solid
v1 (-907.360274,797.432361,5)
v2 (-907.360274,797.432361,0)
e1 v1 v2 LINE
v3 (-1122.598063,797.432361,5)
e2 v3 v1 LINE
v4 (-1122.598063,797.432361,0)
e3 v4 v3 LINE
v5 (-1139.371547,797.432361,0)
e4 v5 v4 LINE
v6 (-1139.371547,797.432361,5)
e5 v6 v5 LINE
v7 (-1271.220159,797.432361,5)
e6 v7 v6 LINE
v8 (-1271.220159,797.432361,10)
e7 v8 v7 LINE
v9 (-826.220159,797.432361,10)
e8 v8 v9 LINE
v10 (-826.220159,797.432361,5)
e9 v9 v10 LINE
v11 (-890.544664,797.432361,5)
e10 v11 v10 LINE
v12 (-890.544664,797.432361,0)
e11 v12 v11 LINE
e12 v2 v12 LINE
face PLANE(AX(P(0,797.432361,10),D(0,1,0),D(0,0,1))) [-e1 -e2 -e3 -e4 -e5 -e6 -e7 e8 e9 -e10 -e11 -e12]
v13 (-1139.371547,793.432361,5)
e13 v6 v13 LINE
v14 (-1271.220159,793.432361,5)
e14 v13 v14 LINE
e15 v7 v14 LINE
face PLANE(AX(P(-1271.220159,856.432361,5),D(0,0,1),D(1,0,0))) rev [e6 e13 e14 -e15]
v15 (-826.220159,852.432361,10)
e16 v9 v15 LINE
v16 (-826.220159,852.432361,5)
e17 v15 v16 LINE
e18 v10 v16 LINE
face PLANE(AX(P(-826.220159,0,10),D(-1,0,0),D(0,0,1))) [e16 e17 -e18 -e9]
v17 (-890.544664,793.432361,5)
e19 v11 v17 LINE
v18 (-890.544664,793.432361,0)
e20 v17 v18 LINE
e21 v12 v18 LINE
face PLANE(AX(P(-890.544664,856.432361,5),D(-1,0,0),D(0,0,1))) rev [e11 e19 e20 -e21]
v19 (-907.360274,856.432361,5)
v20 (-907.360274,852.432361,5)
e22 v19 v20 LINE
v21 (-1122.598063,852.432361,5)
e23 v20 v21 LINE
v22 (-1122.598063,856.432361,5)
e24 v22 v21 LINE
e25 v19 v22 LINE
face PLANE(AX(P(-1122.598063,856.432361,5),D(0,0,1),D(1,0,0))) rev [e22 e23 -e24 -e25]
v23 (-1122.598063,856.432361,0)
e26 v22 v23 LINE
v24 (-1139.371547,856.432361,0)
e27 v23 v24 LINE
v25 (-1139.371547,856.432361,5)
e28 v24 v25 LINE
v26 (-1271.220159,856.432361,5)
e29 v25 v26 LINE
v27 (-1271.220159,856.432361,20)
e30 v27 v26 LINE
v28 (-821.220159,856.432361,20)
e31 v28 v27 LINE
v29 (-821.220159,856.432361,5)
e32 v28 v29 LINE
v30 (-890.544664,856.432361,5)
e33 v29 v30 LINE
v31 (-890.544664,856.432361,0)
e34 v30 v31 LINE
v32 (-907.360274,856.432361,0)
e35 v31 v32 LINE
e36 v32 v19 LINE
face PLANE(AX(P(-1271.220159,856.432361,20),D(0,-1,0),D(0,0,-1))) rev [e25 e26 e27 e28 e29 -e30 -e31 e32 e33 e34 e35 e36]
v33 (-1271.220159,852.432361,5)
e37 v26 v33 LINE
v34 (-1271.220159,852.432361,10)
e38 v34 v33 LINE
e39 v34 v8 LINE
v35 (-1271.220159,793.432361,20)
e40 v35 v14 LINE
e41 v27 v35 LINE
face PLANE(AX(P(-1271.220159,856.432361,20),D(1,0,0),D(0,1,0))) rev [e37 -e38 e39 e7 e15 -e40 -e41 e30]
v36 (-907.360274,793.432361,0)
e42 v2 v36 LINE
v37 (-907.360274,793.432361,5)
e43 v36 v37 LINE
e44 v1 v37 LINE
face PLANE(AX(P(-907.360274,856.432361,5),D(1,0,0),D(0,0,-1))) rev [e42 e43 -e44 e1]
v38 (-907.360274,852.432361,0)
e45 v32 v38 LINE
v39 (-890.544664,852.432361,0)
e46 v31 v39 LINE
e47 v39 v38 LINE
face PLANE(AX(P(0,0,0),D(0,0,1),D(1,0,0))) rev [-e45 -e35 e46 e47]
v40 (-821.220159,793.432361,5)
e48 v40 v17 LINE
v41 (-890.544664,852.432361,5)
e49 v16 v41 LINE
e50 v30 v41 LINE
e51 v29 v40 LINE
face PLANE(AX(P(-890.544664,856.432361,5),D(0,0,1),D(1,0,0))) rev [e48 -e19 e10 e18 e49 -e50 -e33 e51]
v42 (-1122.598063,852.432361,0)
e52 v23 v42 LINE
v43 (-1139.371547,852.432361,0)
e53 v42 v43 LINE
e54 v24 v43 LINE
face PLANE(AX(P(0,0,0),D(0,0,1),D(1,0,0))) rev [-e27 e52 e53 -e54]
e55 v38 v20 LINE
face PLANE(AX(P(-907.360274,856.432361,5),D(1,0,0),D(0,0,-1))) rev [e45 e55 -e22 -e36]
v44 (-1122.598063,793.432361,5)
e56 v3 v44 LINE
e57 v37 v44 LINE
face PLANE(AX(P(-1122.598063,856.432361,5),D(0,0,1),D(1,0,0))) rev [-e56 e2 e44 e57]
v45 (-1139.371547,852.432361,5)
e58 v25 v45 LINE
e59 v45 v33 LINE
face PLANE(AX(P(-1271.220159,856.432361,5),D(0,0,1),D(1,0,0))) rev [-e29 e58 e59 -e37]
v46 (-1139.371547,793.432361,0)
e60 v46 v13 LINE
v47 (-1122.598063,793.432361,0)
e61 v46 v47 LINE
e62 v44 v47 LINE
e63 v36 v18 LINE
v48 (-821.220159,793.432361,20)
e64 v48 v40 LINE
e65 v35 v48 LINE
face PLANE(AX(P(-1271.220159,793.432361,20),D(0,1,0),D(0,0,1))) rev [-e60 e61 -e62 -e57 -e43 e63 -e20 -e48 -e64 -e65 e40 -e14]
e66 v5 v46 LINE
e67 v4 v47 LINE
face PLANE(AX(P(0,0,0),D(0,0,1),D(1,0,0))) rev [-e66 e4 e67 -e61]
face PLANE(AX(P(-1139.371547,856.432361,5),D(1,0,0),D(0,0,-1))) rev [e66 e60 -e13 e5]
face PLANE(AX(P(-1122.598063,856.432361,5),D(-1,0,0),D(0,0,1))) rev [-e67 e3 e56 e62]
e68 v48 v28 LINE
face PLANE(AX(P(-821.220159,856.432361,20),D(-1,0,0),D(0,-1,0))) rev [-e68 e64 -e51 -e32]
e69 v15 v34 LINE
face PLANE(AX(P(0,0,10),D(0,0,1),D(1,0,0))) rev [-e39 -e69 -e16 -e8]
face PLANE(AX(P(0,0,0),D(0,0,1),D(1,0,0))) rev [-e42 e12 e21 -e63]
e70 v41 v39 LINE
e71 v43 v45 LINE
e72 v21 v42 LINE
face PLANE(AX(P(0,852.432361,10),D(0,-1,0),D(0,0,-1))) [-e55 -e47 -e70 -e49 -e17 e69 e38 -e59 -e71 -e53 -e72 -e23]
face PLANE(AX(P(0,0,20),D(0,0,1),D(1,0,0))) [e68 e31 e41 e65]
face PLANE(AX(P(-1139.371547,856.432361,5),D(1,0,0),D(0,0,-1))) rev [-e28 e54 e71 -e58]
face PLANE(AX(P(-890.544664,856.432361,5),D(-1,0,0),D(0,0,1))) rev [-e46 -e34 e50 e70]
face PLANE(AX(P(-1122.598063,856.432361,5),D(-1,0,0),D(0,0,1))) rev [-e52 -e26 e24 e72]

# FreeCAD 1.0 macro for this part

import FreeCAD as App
import Part
import Sketcher


def add_polygon(sketch, points):
    """Adds a closed chain of lines whose ends are joined by coincident constraints."""
    first, n = sketch.GeometryCount, len(points)
    for a, b in zip(points, points[1:] + points[:1]):
        sketch.addGeometry(Part.LineSegment(App.Vector(*a, 0), App.Vector(*b, 0)), False)
    for i in range(n):
        sketch.addConstraint(Sketcher.Constraint("Coincident", first + i, 2, first + (i + 1) % n, 1))

doc = App.newDocument("Part")
body = doc.addObject("PartDesign::Body", "Body")

sketch1 = doc.addObject("Sketcher::SketchObject", "Sketch")
body.addObject(sketch1)
sketch1.AttachmentSupport = (doc.XY_Plane, [""])
sketch1.MapMode = "FlatFace"
add_polygon(sketch1, [(-1271, 856), (-1271, 793), (-821, 793), (-821, 856)])
sketch1.addConstraint([
    Sketcher.Constraint("Vertical", 0),
    Sketcher.Constraint("Horizontal", 1),
    Sketcher.Constraint("Vertical", 2),
    Sketcher.Constraint("Horizontal", 3),
    Sketcher.Constraint("DistanceX", 1, 1, 1, 2, 450.0),
    Sketcher.Constraint("DistanceY", 0, 2, 0, 1, 63.0),
    Sketcher.Constraint("DistanceX", 0, 2, -1, 1, 1271.220159),
    Sketcher.Constraint("DistanceY", -1, 1, 0, 2, 793.432361),
])
pad1 = doc.addObject("PartDesign::Pad", "Pad")
body.addObject(pad1)
pad1.Profile = sketch1
pad1.Length = 20

sketch2 = doc.addObject("Sketcher::SketchObject", "Sketch001")
body.addObject(sketch2)
sketch2.AttachmentSupport = (doc.XY_Plane, [""])
sketch2.MapMode = "FlatFace"
add_polygon(sketch2, [(-1271, 852), (-1271, 797), (-826, 797), (-826, 852)])
sketch2.addConstraint([
    Sketcher.Constraint("Vertical", 0),
    Sketcher.Constraint("Horizontal", 1),
    Sketcher.Constraint("Vertical", 2),
    Sketcher.Constraint("Horizontal", 3),
    Sketcher.Constraint("DistanceX", 1, 1, 1, 2, 445.0),
    Sketcher.Constraint("DistanceY", 0, 2, 0, 1, 55.0),
    Sketcher.Constraint("DistanceX", 0, 2, -1, 1, 1271.220159),
    Sketcher.Constraint("DistanceY", -1, 1, 0, 2, 797.432361),
])
pocket1 = doc.addObject("PartDesign::Pocket", "Pocket")
body.addObject(pocket1)
pocket1.Profile = sketch2
pocket1.Length = 10
pocket1.Reversed = True

sketch3 = doc.addObject("Sketcher::SketchObject", "Sketch002")
body.addObject(sketch3)
sketch3.AttachmentSupport = (doc.XZ_Plane, [""])
sketch3.MapMode = "FlatFace"
sketch3.AttachmentOffset = App.Placement(App.Vector(0, 0, -793.432361), App.Rotation())
add_polygon(sketch3, [(-1271, 5), (-1271, 0), (-1139, 0), (-1139, 5)])
add_polygon(sketch3, [(-1123, 5), (-1123, 0), (-907, 0), (-907, 5)])
add_polygon(sketch3, [(-891, 5), (-891, 0), (-821, 0), (-821, 5)])
sketch3.addConstraint([
    Sketcher.Constraint("Vertical", 0),
    Sketcher.Constraint("Horizontal", 1),
    Sketcher.Constraint("Vertical", 2),
    Sketcher.Constraint("Horizontal", 3),
    Sketcher.Constraint("Vertical", 4),
    Sketcher.Constraint("Horizontal", 5),
    Sketcher.Constraint("Vertical", 6),
    Sketcher.Constraint("Horizontal", 7),
    Sketcher.Constraint("Vertical", 8),
    Sketcher.Constraint("Horizontal", 9),
    Sketcher.Constraint("Vertical", 10),
    Sketcher.Constraint("Horizontal", 11),
    Sketcher.Constraint("PointOnObject", 0, 2, -1),
    Sketcher.Constraint("PointOnObject", 4, 2, -1),
    Sketcher.Constraint("PointOnObject", 8, 2, -1),
    Sketcher.Constraint("Horizontal", 3, 2, 6, 2),
    Sketcher.Constraint("Horizontal", 7, 2, 10, 2),
    Sketcher.Constraint("DistanceY", 0, 2, 0, 1, 5.0),
    Sketcher.Constraint("DistanceX", 5, 1, 5, 2, 215.237788),
    Sketcher.Constraint("DistanceX", 4, 2, 8, 2, 232.053398),
    Sketcher.Constraint("DistanceX", 1, 1, 1, 2, 131.848613),
    Sketcher.Constraint("DistanceX", 9, 1, 9, 2, 69.324505),
    Sketcher.Constraint("DistanceX", 0, 2, -1, 1, 1271.220159),
    Sketcher.Constraint("DistanceX", 9, 2, -1, 1, 821.220159),
])
pocket2 = doc.addObject("PartDesign::Pocket", "Pocket001")
body.addObject(pocket2)
pocket2.Profile = sketch3
pocket2.Type = "ThroughAll"

doc.recompute()
